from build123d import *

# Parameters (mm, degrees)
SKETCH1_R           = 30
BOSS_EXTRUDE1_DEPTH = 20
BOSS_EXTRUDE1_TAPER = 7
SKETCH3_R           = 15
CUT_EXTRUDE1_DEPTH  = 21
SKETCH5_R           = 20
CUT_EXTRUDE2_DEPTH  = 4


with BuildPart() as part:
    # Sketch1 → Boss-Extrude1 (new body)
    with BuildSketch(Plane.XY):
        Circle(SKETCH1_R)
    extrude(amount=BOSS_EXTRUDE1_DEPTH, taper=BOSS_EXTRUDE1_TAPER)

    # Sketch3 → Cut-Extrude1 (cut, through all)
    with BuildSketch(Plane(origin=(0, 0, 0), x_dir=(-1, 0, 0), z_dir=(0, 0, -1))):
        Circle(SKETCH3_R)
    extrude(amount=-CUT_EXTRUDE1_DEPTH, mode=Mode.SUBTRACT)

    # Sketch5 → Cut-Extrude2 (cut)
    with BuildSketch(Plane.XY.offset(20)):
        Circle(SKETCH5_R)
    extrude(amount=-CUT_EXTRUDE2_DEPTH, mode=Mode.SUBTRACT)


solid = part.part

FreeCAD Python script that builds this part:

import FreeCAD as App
import Part
import Sketcher

doc = App.newDocument("Part")
body = doc.addObject("PartDesign::Body", "Body")

# Sketch on XY plane
sketch1 = doc.addObject("Sketcher::SketchObject", "Sketch")
body.addObject(sketch1)
sketch1.AttachmentSupport = (doc.XY_Plane, [""])
sketch1.MapMode = "FlatFace"
sketch1.addGeometry(Part.Circle(App.Vector(0, 0, 0), App.Vector(0, 0, 1), 30), False)
sketch1.addConstraint([
    Sketcher.Constraint("Coincident", 0, 3, -1, 1),
    Sketcher.Constraint("Diameter", 0, 60.0),
])
pad1 = doc.addObject("PartDesign::Pad", "Pad")
body.addObject(pad1)
pad1.Profile = sketch1
pad1.Length = 20
pad1.TaperAngle = -7

# Sketch on XY plane
sketch2 = doc.addObject("Sketcher::SketchObject", "Sketch001")
body.addObject(sketch2)
sketch2.AttachmentSupport = (doc.XY_Plane, [""])
sketch2.MapMode = "FlatFace"
sketch2.addGeometry(Part.Circle(App.Vector(0, 0, 0), App.Vector(0, 0, 1), 15), False)
sketch2.addConstraint([
    Sketcher.Constraint("Coincident", 0, 3, -1, 1),
    Sketcher.Constraint("Diameter", 0, 30.0),
])
pocket1 = doc.addObject("PartDesign::Pocket", "Pocket")
body.addObject(pocket1)
pocket1.Profile = sketch2
pocket1.Type = "ThroughAll"
pocket1.Reversed = True

# Sketch on XY plane
sketch3 = doc.addObject("Sketcher::SketchObject", "Sketch002")
body.addObject(sketch3)
sketch3.AttachmentSupport = (doc.XY_Plane, [""])
sketch3.MapMode = "FlatFace"
sketch3.AttachmentOffset = App.Placement(App.Vector(0, 0, 20), App.Rotation())
sketch3.addGeometry(Part.Circle(App.Vector(0, 0, 0), App.Vector(0, 0, 1), 20), False)
sketch3.addConstraint([
    Sketcher.Constraint("Coincident", 0, 3, -1, 1),
    Sketcher.Constraint("Diameter", 0, 40.0),
])
pocket2 = doc.addObject("PartDesign::Pocket", "Pocket001")
body.addObject(pocket2)
pocket2.Profile = sketch3
pocket2.Length = 4

doc.recompute()
